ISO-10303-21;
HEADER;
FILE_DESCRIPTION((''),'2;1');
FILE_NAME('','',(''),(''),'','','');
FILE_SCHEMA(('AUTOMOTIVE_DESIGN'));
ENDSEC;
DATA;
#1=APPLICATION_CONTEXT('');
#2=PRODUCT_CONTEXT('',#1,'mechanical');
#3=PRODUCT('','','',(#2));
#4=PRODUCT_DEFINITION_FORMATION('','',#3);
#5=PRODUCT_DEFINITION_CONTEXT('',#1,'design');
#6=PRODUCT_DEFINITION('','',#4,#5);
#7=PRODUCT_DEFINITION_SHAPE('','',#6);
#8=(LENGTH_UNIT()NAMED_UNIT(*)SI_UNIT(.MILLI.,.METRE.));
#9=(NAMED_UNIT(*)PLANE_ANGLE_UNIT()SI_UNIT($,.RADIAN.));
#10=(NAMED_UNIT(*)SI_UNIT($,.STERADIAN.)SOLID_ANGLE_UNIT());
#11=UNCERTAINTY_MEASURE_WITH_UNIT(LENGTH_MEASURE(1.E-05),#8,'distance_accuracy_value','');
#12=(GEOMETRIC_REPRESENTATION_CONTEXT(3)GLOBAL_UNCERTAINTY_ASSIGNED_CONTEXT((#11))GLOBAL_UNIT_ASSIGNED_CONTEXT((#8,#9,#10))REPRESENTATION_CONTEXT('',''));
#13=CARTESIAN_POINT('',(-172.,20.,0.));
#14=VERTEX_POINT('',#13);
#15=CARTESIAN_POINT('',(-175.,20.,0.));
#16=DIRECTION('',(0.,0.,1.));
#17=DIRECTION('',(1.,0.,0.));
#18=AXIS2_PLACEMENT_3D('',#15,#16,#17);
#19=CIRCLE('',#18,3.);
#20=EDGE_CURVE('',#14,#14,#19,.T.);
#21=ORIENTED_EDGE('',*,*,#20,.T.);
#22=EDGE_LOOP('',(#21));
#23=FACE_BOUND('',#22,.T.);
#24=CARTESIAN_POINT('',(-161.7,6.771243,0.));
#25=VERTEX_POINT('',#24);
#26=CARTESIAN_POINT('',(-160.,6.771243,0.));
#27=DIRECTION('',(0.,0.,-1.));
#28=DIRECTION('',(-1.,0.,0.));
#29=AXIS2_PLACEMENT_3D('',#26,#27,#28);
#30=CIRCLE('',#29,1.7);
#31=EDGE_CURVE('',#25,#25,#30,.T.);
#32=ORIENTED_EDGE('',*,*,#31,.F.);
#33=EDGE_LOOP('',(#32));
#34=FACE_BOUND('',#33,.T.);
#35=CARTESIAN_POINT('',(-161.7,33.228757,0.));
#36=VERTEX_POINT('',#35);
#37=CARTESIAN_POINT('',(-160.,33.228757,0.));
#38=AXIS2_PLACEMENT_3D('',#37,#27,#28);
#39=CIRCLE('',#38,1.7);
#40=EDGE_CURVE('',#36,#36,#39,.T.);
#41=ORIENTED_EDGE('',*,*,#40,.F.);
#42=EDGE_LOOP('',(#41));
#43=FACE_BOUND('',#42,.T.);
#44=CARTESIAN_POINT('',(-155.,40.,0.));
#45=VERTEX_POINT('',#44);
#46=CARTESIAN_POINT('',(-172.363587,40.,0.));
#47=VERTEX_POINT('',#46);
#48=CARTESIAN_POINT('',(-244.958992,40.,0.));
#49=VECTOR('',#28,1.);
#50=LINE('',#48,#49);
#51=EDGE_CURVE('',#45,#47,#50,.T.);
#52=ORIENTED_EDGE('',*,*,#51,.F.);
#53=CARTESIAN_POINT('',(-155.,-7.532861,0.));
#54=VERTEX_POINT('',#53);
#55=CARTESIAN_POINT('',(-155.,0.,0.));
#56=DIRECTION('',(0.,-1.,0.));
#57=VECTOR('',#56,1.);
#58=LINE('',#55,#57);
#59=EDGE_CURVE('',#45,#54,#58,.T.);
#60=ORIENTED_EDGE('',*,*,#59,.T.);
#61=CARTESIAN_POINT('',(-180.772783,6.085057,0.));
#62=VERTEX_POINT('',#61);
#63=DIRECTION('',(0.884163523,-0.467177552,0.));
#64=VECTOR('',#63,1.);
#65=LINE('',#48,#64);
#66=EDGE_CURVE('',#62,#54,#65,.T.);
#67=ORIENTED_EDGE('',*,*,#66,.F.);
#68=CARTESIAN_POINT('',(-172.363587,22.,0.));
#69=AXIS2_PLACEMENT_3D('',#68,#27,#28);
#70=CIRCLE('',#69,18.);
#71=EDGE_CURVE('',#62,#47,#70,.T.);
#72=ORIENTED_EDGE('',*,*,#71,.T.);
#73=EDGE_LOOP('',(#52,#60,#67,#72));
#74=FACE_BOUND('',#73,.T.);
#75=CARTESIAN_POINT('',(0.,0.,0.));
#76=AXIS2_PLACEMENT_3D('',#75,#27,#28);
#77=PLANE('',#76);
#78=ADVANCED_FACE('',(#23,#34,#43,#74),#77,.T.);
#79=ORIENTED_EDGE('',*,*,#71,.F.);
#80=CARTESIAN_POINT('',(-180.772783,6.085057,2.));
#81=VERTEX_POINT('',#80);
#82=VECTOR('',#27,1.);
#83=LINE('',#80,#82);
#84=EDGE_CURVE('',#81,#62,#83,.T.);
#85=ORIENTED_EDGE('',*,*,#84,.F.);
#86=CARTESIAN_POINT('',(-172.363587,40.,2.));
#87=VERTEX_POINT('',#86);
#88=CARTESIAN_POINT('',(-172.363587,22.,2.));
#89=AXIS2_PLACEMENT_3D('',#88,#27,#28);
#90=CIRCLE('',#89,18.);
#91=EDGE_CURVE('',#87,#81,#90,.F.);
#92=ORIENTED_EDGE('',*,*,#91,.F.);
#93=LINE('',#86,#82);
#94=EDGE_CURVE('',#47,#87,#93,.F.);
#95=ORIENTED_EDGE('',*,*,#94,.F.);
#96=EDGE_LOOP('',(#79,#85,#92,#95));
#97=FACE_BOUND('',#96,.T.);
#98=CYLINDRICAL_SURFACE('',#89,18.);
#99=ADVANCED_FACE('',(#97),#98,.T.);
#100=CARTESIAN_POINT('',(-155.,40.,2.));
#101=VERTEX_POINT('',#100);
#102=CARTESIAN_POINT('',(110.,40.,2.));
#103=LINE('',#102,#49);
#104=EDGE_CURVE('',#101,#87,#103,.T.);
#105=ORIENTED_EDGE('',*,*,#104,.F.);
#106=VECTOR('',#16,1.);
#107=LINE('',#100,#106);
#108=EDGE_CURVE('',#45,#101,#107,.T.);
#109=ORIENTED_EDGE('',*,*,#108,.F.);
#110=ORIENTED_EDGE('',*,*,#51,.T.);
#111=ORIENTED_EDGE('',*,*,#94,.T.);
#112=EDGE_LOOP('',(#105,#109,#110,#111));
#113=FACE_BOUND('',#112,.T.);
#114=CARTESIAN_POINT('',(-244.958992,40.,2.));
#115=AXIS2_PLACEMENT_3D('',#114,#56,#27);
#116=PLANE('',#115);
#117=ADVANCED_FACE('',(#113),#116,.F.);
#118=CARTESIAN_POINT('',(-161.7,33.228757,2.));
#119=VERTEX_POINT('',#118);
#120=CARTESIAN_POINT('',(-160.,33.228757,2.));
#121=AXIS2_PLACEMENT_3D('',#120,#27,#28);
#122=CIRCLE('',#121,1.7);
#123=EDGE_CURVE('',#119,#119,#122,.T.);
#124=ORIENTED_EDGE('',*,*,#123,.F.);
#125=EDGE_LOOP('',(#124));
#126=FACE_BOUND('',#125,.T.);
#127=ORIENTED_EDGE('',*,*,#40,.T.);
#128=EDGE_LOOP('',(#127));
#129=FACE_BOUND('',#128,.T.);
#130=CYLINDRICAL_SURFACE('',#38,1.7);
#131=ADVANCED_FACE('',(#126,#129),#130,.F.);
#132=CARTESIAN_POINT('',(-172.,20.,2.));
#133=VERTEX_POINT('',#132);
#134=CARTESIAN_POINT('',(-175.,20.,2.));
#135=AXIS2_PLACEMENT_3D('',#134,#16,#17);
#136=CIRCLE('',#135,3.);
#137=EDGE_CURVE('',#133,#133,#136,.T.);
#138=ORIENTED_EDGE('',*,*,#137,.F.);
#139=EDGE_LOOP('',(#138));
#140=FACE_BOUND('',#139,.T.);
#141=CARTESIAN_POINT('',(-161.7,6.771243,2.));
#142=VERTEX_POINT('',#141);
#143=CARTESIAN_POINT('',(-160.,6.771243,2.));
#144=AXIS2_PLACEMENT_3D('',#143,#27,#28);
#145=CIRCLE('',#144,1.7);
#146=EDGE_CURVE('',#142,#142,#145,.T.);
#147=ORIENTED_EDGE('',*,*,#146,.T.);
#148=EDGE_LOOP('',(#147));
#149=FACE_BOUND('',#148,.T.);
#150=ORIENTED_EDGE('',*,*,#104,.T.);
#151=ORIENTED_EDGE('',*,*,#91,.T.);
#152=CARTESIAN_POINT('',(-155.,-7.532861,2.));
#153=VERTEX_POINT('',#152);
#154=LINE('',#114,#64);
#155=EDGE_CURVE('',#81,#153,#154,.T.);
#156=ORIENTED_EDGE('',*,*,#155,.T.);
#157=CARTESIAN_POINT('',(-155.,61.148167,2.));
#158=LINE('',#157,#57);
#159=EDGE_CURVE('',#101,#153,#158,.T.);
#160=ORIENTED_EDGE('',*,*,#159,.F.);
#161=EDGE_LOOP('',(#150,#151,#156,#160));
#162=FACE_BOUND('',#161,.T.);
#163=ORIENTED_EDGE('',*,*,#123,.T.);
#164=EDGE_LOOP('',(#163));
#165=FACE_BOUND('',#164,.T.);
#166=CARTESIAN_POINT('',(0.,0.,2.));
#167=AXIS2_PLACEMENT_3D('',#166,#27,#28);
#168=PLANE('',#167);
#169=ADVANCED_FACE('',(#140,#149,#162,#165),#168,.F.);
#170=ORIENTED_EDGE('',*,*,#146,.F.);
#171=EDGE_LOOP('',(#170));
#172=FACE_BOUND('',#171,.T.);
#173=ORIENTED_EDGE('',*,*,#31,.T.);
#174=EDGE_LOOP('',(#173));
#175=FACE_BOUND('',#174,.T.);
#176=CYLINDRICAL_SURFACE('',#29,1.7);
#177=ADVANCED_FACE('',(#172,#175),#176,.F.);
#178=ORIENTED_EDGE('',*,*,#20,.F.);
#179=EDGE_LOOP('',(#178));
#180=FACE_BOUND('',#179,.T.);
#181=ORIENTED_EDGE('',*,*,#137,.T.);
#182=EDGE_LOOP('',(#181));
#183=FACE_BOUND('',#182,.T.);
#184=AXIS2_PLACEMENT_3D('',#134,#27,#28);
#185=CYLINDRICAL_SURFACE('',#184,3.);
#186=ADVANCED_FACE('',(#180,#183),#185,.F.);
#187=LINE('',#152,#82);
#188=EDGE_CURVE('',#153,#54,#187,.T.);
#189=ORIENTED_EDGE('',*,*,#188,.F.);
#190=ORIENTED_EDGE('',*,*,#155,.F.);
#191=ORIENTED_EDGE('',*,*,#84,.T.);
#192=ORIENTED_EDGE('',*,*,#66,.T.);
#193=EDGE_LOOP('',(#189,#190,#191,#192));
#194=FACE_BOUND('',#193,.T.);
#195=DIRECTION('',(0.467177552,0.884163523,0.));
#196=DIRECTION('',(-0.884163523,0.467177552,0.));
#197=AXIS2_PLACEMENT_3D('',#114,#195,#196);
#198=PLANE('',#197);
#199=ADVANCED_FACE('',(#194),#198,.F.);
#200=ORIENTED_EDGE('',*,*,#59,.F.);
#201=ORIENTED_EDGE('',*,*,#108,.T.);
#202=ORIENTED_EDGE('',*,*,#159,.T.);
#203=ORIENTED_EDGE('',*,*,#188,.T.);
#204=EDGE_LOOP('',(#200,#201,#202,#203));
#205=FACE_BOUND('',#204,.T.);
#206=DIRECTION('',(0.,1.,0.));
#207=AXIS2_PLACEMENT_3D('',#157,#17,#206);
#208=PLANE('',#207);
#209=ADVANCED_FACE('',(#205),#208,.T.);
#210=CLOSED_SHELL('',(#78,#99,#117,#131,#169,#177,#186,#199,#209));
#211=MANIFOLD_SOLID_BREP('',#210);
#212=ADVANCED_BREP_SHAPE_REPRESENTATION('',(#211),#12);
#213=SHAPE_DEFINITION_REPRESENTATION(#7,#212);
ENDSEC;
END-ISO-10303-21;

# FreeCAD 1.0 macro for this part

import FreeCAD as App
import Part
import Sketcher
Q = App.Units.Quantity


def edges_at(feature, points):
    """Names of the edges that pass closest to the given points."""
    edges = feature.Shape.Edges
    near = lambda p: min(range(len(edges)), key=lambda i: edges[i].distToShape(Part.Vertex(*p))[0])
    return sorted({f"Edge{near(p) + 1}" for p in points})

doc = App.newDocument("Part")
params = doc.addObject("Spreadsheet::Sheet", "Params")
for row, (alias, value) in enumerate([
    ("sketch1_diameter", "6 mm"),
    ("pad1_length", "2 mm"),
    ("fillet_radius", "18 mm"),
    ("fillet2_radius", "20 mm"),
    ("sketch3_diameter", "3.4 mm"),
    ("hole_diameter", "3.4 mm"),
], start=1):
    params.set(f"A{row}", alias)
    params.set(f"B{row}", "=" + value)
    params.setAlias(f"B{row}", alias)

body = doc.addObject("PartDesign::Body", "Body")

# Sketch on XY plane
sketch1 = body.newObject("Sketcher::SketchObject", "Sketch")
sketch1.AttachmentSupport = (doc.getObject("XY_Plane"), [""])
sketch1.MapMode = "FlatFace"
sketch1.addGeometry(Part.LineSegment(App.Vector(244.958992, 40, 0), App.Vector(-244.958992, 40, 0)), False)
sketch1.addGeometry(Part.LineSegment(App.Vector(-244.958992, 40, 0), App.Vector(-112.479496, -30, 0)), False)
sketch1.addGeometry(Part.LineSegment(App.Vector(-112.479496, -30, 0), App.Vector(112.479496, -30, 0)), False)
sketch1.addGeometry(Part.LineSegment(App.Vector(112.479496, -30, 0), App.Vector(244.958992, 40, 0)), False)
sketch1.addGeometry(Part.Circle(App.Vector(110, -20, 0), App.Vector(0, 0, 1), 3), False)
sketch1.addGeometry(Part.Circle(App.Vector(0, -20, 0), App.Vector(0, 0, 1), 3), False)
sketch1.addGeometry(Part.Circle(App.Vector(-110, -20, 0), App.Vector(0, 0, 1), 3), False)
sketch1.addGeometry(Part.Circle(App.Vector(175, 20, 0), App.Vector(0, 0, 1), 3), False)
sketch1.addGeometry(Part.Circle(App.Vector(58.333333, 20, 0), App.Vector(0, 0, 1), 3), False)
sketch1.addGeometry(Part.Circle(App.Vector(-58.333333, 20, 0), App.Vector(0, 0, 1), 3), False)
sketch1.addGeometry(Part.Circle(App.Vector(-175, 20, 0), App.Vector(0, 0, 1), 3), False)
sketch1.addConstraint(Sketcher.Constraint("Coincident", 0, 2, 1, 1))
sketch1.addConstraint(Sketcher.Constraint("Coincident", 1, 2, 2, 1))
sketch1.addConstraint(Sketcher.Constraint("Coincident", 2, 2, 3, 1))
sketch1.addConstraint(Sketcher.Constraint("Coincident", 3, 2, 0, 1))
sketch1.addConstraint(Sketcher.Constraint("Horizontal", 0))
sketch1.addConstraint(Sketcher.Constraint("Horizontal", 2))
sketch1.addConstraint(Sketcher.Constraint("Equal", 4, 5))
sketch1.addConstraint(Sketcher.Constraint("Equal", 5, 6))
sketch1.addConstraint(Sketcher.Constraint("Equal", 6, 7))
sketch1.addConstraint(Sketcher.Constraint("Equal", 7, 8))
sketch1.addConstraint(Sketcher.Constraint("Equal", 8, 9))
sketch1.addConstraint(Sketcher.Constraint("Equal", 9, 10))
sketch1.addConstraint(Sketcher.Constraint("Symmetric", 4, 3, 6, 3, -2))
sketch1.addConstraint(Sketcher.Constraint("Symmetric", 8, 3, 9, 3, -2))
sketch1.addConstraint(Sketcher.Constraint("Symmetric", 7, 3, 10, 3, -2))
sketch1.addConstraint(Sketcher.Constraint("PointOnObject", 5, 3, -2))
sketch1.addConstraint(Sketcher.Constraint("Horizontal", 4, 3, 5, 3))
sketch1.addConstraint(Sketcher.Constraint("Horizontal", 7, 3, 8, 3))
sketch1.addConstraint(Sketcher.Constraint("Equal", 1, 3))
sketch1.addConstraint(Sketcher.Constraint("Diameter", 4, Q("6 mm")))
sketch1.addConstraint(Sketcher.Constraint("DistanceX", -1, 1, 4, 3, Q("110 mm")))
sketch1.addConstraint(Sketcher.Constraint("DistanceY", 4, 3, -1, 1, Q("20 mm")))
sketch1.addConstraint(Sketcher.Constraint("DistanceX", -1, 1, 7, 3, Q("175 mm")))
sketch1.addConstraint(Sketcher.Constraint("DistanceY", -1, 1, 7, 3, Q("20 mm")))
sketch1.addConstraint(Sketcher.Constraint("DistanceY", -1, 1, 0, 2, Q("40 mm")))
sketch1.addConstraint(Sketcher.Constraint("DistanceY", 1, 2, -1, 1, Q("30 mm")))
sketch1.addConstraint(Sketcher.Constraint("DistanceX", 2, 1, 2, 2, Q("224.958992 mm")))
sketch1.addConstraint(Sketcher.Constraint("DistanceX", 0, 2, 0, 1, Q("489.917983 mm")))
sketch1.addConstraint(Sketcher.Constraint("DistanceX", 0, 2, -1, 1, Q("244.958992 mm")))
sketch1.addConstraint(Sketcher.Constraint("DistanceX", 0, 2, 9, 3, Q("186.625658 mm")))
sketch1.setExpression("Constraints[19]", "Params.sketch1_diameter")
pad1 = body.newObject("PartDesign::Pad", "Pad")
pad1.Profile = sketch1
pad1.setExpression("Length", "Params.pad1_length")
doc.recompute()

fillet = body.newObject("PartDesign::Fillet", "Fillet")
fillet.Base = (pad1, edges_at(pad1, [(-244.959, 40, 1), (244.959, 40, 1)]))
fillet.setExpression("Radius", "Params.fillet_radius")
doc.recompute()

fillet2 = body.newObject("PartDesign::Fillet", "Fillet001")
fillet2.Base = (fillet, edges_at(fillet, [(112.479, -30, 1), (-112.479, -30, 1)]))
fillet2.setExpression("Radius", "Params.fillet2_radius")

# Sketch on XY plane
sketch2 = body.newObject("Sketcher::SketchObject", "Sketch001")
sketch2.AttachmentSupport = (doc.getObject("XY_Plane"), [""])
sketch2.MapMode = "FlatFace"
sketch2.addGeometry(Part.LineSegment(App.Vector(-155, 61.148167, 0), App.Vector(-155, -35.657787, 0)), False)
sketch2.addGeometry(Part.LineSegment(App.Vector(-155, -35.657787, 0), App.Vector(201.718169, -35.657787, 0)), False)
sketch2.addGeometry(Part.LineSegment(App.Vector(201.718169, -35.657787, 0), App.Vector(201.718169, 61.148167, 0)), False)
sketch2.addGeometry(Part.LineSegment(App.Vector(201.718169, 61.148167, 0), App.Vector(-155, 61.148167, 0)), False)
sketch2.addConstraint(Sketcher.Constraint("Coincident", 0, 2, 1, 1))
sketch2.addConstraint(Sketcher.Constraint("Coincident", 1, 2, 2, 1))
sketch2.addConstraint(Sketcher.Constraint("Coincident", 2, 2, 3, 1))
sketch2.addConstraint(Sketcher.Constraint("Coincident", 3, 2, 0, 1))
sketch2.addConstraint(Sketcher.Constraint("Vertical", 0))
sketch2.addConstraint(Sketcher.Constraint("Horizontal", 1))
sketch2.addConstraint(Sketcher.Constraint("Vertical", 2))
sketch2.addConstraint(Sketcher.Constraint("Horizontal", 3))
sketch2.addConstraint(Sketcher.Constraint("DistanceX", 0, 2, -1, 1, Q("155 mm")))
sketch2.addConstraint(Sketcher.Constraint("DistanceX", 1, 1, 1, 2, Q("356.718169 mm")))
sketch2.addConstraint(Sketcher.Constraint("DistanceY", 0, 2, 0, 1, Q("96.805954 mm")))
sketch2.addConstraint(Sketcher.Constraint("DistanceY", 0, 2, -1, 1, Q("35.657787 mm")))
pocket1 = body.newObject("PartDesign::Pocket", "Pocket")
pocket1.Profile = sketch2
pocket1.Type = "ThroughAll"
pocket1.Midplane = True

# Sketch on XY plane
sketch3 = body.newObject("Sketcher::SketchObject", "Sketch002")
sketch3.AttachmentSupport = (doc.getObject("XY_Plane"), [""])
sketch3.MapMode = "FlatFace"
sketch3.addGeometry(Part.Circle(App.Vector(-160, 33.228757, 0), App.Vector(0, 0, 1), 1.7), False)
sketch3.addGeometry(Part.Circle(App.Vector(-160, 6.771243, 0), App.Vector(0, 0, 1), 1.7), False)
sketch3.addConstraint(Sketcher.Constraint("Equal", 0, 1))
sketch3.addConstraint(Sketcher.Constraint("Vertical", 0, 3, 1, 3))
sketch3.addConstraint(Sketcher.Constraint("Diameter", 0, Q("3.4 mm")))
sketch3.addConstraint(Sketcher.Constraint("DistanceX", 0, 3, -1, 1, Q("160 mm")))
sketch3.addConstraint(Sketcher.Constraint("DistanceY", -1, 1, 0, 3, Q("33.228757 mm")))
sketch3.addConstraint(Sketcher.Constraint("DistanceY", -1, 1, 1, 3, Q("6.771243 mm")))
sketch3.setExpression("Constraints[2]", "Params.sketch3_diameter")
doc.recompute()
hole = body.newObject("PartDesign::Hole", "Hole")
hole.Profile = sketch3
hole.ThreadType = "None"
hole.setExpression("Diameter", "Params.hole_diameter")
hole.DepthType = "ThroughAll"
hole.Reversed = True

doc.recompute()
